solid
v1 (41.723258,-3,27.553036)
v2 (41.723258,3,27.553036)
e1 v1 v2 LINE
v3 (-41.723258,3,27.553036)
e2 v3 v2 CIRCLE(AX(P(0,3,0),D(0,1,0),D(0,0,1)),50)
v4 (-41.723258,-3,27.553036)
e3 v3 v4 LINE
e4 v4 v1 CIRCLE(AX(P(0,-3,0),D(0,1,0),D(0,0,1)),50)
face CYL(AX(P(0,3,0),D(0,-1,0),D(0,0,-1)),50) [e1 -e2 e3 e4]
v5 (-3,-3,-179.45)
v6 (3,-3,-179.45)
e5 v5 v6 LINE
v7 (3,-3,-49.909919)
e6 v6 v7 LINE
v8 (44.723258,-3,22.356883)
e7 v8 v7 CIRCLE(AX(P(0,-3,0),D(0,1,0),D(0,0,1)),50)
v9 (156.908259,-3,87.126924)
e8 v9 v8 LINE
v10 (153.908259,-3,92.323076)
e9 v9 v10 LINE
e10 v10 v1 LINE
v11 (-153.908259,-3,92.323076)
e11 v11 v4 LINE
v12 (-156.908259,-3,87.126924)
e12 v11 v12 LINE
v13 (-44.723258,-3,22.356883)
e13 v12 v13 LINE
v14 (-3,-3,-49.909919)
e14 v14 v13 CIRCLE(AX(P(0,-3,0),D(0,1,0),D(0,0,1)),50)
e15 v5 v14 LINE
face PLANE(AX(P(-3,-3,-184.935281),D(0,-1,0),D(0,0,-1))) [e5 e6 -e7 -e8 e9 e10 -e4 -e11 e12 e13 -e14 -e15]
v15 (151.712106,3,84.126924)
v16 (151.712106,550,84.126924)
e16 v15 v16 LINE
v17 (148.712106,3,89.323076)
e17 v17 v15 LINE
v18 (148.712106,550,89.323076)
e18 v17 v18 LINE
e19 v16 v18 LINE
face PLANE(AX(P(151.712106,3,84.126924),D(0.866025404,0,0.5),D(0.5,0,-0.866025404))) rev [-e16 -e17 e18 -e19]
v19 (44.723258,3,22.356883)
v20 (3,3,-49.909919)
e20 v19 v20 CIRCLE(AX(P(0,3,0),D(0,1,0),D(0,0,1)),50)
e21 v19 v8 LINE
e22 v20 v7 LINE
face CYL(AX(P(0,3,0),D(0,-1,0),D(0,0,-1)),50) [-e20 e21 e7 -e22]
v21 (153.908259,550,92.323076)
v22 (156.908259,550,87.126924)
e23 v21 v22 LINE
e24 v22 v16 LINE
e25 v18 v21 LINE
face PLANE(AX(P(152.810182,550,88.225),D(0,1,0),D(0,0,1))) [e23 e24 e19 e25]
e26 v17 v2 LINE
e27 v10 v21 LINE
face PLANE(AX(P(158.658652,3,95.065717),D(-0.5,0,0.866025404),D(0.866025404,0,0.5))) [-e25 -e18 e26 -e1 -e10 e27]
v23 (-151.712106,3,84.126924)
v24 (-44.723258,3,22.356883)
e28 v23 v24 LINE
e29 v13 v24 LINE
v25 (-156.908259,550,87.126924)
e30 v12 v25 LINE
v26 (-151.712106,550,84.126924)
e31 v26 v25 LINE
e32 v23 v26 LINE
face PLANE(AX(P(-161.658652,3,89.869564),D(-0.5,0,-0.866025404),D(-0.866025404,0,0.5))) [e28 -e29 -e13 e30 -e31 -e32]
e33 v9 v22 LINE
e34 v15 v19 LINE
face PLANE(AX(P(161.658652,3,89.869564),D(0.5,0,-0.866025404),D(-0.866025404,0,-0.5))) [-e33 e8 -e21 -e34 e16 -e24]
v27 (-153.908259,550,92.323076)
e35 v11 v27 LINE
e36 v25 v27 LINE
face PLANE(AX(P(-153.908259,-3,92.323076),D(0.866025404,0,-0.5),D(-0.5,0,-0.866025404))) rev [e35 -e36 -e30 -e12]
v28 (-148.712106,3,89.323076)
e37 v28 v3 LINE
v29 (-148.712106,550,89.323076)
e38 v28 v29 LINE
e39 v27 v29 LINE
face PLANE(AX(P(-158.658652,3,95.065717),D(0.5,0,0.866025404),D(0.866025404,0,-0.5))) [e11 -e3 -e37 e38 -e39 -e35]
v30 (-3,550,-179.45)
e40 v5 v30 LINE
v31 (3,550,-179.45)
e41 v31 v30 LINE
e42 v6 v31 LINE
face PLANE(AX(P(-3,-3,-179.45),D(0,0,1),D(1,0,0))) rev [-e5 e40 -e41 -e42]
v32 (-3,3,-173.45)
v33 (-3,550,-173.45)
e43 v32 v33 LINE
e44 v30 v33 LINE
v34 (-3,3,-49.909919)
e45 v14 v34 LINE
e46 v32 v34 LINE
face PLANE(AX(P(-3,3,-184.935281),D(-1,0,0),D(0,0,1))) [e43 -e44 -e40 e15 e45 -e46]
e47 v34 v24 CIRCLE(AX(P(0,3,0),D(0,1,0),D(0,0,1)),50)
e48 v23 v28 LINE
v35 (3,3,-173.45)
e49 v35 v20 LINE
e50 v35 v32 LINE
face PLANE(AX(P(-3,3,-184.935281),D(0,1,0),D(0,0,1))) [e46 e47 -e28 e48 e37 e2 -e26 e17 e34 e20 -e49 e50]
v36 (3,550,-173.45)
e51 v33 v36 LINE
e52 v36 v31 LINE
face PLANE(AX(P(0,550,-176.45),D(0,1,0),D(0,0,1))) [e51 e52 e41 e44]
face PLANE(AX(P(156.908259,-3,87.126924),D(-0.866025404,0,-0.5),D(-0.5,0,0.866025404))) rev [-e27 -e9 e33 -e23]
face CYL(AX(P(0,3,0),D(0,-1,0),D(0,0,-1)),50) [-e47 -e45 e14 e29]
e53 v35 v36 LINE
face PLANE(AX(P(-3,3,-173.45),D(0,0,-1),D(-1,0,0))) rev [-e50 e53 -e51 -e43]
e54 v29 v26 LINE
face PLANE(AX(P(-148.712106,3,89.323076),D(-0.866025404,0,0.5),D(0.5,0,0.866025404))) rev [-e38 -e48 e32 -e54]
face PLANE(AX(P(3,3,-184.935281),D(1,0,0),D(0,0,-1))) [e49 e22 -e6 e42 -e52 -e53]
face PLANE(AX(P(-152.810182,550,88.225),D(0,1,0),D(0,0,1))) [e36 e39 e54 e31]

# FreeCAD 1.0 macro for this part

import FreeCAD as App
import Part
import Sketcher
from FreeCAD import Vector
Q = App.Units.Quantity

doc = App.newDocument("Part")
params = doc.addObject("Spreadsheet::Sheet", "Params")
for row, (alias, value) in enumerate([
    ("sketch1_width", "6 mm"),
    ("sketch2_width", "550 mm"),
    ("sketch2_height", "176.45 mm"),
    ("sketch3_diameter", "100 mm"),
    ("pad1_length", "6 mm"),
], start=1):
    params.set(f"A{row}", alias)
    params.set(f"B{row}", "=" + value)
    params.setAlias(f"B{row}", alias)

body = doc.addObject("PartDesign::Body", "Body")

# Sketch on XY plane
sketch1 = doc.addObject("Sketcher::SketchObject", "Sketch")
body.addObject(sketch1)
sketch1.AttachmentSupport = (doc.XY_Plane, [""])
sketch1.MapMode = "FlatFace"
sketch1.addGeometry([
    Part.LineSegment(Vector(-3, 3, 0), Vector(-3, -3, 0)),
    Part.LineSegment(Vector(-3, -3, 0), Vector(3, -3, 0)),
    Part.LineSegment(Vector(3, -3, 0), Vector(3, 3, 0)),
    Part.LineSegment(Vector(3, 3, 0), Vector(-3, 3, 0)),
], False)
sketch1.addConstraint([
    Sketcher.Constraint("Coincident", 0, 2, 1, 1),
    Sketcher.Constraint("Coincident", 1, 2, 2, 1),
    Sketcher.Constraint("Coincident", 2, 2, 3, 1),
    Sketcher.Constraint("Coincident", 3, 2, 0, 1),
    Sketcher.Constraint("Vertical", 0),
    Sketcher.Constraint("Horizontal", 1),
    Sketcher.Constraint("Vertical", 2),
    Sketcher.Constraint("Horizontal", 3),
    Sketcher.Constraint("Symmetric", 0, 2, 2, 2, -1, 1),
    Sketcher.Constraint("Equal", 3, 0),
    Sketcher.Constraint("DistanceX", 1, 1, 1, 2, Q("6 mm")),
])
sketch1.setExpression("Constraints[10]", "Params.sketch1_width")

# Sketch on YZ plane
sketch2 = doc.addObject("Sketcher::SketchObject", "Sketch001")
body.addObject(sketch2)
sketch2.AttachmentSupport = (doc.YZ_Plane, [""])
sketch2.MapMode = "FlatFace"
sketch2.addGeometry([
    Part.LineSegment(Vector(0, 0, 0), Vector(0, -176.45, 0)),
    Part.LineSegment(Vector(0, -176.45, 0), Vector(550, -176.45, 0)),
], False)
sketch2.addConstraint([
    Sketcher.Constraint("Coincident", 0, 2, 1, 1),
    Sketcher.Constraint("Vertical", 0),
    Sketcher.Constraint("Horizontal", 1),
    Sketcher.Constraint("Coincident", 0, 1, -1, 1),
    Sketcher.Constraint("DistanceX", 1, 1, 1, 2, Q("550 mm")),
    Sketcher.Constraint("DistanceY", 0, 2, 0, 1, Q("176.45 mm")),
])
sketch2.setExpression("Constraints[4]", "Params.sketch2_width")
sketch2.setExpression("Constraints[5]", "Params.sketch2_height")
doc.recompute()

additivepipe = doc.addObject("PartDesign::AdditivePipe", "AdditivePipe")
body.addObject(additivepipe)
additivepipe.Profile = sketch1
additivepipe.Spine = (sketch2, ["Edge1", "Edge2"])
additivepipe.Transition = "Right corner"

# Sketch on XZ plane
sketch3 = doc.addObject("Sketcher::SketchObject", "Sketch002")
body.addObject(sketch3)
sketch3.AttachmentSupport = (doc.XZ_Plane, [""])
sketch3.MapMode = "FlatFace"
sketch3.addGeometry(Part.Circle(Vector(0, 0, 0), Vector(0, 0, 1), 50), False)
sketch3.addConstraint([
    Sketcher.Constraint("Coincident", 0, 3, -1, 1),
    Sketcher.Constraint("Diameter", 0, Q("100 mm")),
])
sketch3.setExpression("Constraints[1]", "Params.sketch3_diameter")
pad1 = doc.addObject("PartDesign::Pad", "Pad")
body.addObject(pad1)
pad1.Profile = sketch3
pad1.setExpression("Length", "Params.pad1_length")
pad1.Midplane = True
doc.recompute()

polarpattern = doc.addObject("PartDesign::PolarPattern", "PolarPattern")
body.addObject(polarpattern)
polarpattern.Originals = [additivepipe]
polarpattern.Axis = (doc.Y_Axis, [""])
polarpattern.Angle = 360
polarpattern.Occurrences = 3
body.Tip = polarpattern

doc.recompute()
